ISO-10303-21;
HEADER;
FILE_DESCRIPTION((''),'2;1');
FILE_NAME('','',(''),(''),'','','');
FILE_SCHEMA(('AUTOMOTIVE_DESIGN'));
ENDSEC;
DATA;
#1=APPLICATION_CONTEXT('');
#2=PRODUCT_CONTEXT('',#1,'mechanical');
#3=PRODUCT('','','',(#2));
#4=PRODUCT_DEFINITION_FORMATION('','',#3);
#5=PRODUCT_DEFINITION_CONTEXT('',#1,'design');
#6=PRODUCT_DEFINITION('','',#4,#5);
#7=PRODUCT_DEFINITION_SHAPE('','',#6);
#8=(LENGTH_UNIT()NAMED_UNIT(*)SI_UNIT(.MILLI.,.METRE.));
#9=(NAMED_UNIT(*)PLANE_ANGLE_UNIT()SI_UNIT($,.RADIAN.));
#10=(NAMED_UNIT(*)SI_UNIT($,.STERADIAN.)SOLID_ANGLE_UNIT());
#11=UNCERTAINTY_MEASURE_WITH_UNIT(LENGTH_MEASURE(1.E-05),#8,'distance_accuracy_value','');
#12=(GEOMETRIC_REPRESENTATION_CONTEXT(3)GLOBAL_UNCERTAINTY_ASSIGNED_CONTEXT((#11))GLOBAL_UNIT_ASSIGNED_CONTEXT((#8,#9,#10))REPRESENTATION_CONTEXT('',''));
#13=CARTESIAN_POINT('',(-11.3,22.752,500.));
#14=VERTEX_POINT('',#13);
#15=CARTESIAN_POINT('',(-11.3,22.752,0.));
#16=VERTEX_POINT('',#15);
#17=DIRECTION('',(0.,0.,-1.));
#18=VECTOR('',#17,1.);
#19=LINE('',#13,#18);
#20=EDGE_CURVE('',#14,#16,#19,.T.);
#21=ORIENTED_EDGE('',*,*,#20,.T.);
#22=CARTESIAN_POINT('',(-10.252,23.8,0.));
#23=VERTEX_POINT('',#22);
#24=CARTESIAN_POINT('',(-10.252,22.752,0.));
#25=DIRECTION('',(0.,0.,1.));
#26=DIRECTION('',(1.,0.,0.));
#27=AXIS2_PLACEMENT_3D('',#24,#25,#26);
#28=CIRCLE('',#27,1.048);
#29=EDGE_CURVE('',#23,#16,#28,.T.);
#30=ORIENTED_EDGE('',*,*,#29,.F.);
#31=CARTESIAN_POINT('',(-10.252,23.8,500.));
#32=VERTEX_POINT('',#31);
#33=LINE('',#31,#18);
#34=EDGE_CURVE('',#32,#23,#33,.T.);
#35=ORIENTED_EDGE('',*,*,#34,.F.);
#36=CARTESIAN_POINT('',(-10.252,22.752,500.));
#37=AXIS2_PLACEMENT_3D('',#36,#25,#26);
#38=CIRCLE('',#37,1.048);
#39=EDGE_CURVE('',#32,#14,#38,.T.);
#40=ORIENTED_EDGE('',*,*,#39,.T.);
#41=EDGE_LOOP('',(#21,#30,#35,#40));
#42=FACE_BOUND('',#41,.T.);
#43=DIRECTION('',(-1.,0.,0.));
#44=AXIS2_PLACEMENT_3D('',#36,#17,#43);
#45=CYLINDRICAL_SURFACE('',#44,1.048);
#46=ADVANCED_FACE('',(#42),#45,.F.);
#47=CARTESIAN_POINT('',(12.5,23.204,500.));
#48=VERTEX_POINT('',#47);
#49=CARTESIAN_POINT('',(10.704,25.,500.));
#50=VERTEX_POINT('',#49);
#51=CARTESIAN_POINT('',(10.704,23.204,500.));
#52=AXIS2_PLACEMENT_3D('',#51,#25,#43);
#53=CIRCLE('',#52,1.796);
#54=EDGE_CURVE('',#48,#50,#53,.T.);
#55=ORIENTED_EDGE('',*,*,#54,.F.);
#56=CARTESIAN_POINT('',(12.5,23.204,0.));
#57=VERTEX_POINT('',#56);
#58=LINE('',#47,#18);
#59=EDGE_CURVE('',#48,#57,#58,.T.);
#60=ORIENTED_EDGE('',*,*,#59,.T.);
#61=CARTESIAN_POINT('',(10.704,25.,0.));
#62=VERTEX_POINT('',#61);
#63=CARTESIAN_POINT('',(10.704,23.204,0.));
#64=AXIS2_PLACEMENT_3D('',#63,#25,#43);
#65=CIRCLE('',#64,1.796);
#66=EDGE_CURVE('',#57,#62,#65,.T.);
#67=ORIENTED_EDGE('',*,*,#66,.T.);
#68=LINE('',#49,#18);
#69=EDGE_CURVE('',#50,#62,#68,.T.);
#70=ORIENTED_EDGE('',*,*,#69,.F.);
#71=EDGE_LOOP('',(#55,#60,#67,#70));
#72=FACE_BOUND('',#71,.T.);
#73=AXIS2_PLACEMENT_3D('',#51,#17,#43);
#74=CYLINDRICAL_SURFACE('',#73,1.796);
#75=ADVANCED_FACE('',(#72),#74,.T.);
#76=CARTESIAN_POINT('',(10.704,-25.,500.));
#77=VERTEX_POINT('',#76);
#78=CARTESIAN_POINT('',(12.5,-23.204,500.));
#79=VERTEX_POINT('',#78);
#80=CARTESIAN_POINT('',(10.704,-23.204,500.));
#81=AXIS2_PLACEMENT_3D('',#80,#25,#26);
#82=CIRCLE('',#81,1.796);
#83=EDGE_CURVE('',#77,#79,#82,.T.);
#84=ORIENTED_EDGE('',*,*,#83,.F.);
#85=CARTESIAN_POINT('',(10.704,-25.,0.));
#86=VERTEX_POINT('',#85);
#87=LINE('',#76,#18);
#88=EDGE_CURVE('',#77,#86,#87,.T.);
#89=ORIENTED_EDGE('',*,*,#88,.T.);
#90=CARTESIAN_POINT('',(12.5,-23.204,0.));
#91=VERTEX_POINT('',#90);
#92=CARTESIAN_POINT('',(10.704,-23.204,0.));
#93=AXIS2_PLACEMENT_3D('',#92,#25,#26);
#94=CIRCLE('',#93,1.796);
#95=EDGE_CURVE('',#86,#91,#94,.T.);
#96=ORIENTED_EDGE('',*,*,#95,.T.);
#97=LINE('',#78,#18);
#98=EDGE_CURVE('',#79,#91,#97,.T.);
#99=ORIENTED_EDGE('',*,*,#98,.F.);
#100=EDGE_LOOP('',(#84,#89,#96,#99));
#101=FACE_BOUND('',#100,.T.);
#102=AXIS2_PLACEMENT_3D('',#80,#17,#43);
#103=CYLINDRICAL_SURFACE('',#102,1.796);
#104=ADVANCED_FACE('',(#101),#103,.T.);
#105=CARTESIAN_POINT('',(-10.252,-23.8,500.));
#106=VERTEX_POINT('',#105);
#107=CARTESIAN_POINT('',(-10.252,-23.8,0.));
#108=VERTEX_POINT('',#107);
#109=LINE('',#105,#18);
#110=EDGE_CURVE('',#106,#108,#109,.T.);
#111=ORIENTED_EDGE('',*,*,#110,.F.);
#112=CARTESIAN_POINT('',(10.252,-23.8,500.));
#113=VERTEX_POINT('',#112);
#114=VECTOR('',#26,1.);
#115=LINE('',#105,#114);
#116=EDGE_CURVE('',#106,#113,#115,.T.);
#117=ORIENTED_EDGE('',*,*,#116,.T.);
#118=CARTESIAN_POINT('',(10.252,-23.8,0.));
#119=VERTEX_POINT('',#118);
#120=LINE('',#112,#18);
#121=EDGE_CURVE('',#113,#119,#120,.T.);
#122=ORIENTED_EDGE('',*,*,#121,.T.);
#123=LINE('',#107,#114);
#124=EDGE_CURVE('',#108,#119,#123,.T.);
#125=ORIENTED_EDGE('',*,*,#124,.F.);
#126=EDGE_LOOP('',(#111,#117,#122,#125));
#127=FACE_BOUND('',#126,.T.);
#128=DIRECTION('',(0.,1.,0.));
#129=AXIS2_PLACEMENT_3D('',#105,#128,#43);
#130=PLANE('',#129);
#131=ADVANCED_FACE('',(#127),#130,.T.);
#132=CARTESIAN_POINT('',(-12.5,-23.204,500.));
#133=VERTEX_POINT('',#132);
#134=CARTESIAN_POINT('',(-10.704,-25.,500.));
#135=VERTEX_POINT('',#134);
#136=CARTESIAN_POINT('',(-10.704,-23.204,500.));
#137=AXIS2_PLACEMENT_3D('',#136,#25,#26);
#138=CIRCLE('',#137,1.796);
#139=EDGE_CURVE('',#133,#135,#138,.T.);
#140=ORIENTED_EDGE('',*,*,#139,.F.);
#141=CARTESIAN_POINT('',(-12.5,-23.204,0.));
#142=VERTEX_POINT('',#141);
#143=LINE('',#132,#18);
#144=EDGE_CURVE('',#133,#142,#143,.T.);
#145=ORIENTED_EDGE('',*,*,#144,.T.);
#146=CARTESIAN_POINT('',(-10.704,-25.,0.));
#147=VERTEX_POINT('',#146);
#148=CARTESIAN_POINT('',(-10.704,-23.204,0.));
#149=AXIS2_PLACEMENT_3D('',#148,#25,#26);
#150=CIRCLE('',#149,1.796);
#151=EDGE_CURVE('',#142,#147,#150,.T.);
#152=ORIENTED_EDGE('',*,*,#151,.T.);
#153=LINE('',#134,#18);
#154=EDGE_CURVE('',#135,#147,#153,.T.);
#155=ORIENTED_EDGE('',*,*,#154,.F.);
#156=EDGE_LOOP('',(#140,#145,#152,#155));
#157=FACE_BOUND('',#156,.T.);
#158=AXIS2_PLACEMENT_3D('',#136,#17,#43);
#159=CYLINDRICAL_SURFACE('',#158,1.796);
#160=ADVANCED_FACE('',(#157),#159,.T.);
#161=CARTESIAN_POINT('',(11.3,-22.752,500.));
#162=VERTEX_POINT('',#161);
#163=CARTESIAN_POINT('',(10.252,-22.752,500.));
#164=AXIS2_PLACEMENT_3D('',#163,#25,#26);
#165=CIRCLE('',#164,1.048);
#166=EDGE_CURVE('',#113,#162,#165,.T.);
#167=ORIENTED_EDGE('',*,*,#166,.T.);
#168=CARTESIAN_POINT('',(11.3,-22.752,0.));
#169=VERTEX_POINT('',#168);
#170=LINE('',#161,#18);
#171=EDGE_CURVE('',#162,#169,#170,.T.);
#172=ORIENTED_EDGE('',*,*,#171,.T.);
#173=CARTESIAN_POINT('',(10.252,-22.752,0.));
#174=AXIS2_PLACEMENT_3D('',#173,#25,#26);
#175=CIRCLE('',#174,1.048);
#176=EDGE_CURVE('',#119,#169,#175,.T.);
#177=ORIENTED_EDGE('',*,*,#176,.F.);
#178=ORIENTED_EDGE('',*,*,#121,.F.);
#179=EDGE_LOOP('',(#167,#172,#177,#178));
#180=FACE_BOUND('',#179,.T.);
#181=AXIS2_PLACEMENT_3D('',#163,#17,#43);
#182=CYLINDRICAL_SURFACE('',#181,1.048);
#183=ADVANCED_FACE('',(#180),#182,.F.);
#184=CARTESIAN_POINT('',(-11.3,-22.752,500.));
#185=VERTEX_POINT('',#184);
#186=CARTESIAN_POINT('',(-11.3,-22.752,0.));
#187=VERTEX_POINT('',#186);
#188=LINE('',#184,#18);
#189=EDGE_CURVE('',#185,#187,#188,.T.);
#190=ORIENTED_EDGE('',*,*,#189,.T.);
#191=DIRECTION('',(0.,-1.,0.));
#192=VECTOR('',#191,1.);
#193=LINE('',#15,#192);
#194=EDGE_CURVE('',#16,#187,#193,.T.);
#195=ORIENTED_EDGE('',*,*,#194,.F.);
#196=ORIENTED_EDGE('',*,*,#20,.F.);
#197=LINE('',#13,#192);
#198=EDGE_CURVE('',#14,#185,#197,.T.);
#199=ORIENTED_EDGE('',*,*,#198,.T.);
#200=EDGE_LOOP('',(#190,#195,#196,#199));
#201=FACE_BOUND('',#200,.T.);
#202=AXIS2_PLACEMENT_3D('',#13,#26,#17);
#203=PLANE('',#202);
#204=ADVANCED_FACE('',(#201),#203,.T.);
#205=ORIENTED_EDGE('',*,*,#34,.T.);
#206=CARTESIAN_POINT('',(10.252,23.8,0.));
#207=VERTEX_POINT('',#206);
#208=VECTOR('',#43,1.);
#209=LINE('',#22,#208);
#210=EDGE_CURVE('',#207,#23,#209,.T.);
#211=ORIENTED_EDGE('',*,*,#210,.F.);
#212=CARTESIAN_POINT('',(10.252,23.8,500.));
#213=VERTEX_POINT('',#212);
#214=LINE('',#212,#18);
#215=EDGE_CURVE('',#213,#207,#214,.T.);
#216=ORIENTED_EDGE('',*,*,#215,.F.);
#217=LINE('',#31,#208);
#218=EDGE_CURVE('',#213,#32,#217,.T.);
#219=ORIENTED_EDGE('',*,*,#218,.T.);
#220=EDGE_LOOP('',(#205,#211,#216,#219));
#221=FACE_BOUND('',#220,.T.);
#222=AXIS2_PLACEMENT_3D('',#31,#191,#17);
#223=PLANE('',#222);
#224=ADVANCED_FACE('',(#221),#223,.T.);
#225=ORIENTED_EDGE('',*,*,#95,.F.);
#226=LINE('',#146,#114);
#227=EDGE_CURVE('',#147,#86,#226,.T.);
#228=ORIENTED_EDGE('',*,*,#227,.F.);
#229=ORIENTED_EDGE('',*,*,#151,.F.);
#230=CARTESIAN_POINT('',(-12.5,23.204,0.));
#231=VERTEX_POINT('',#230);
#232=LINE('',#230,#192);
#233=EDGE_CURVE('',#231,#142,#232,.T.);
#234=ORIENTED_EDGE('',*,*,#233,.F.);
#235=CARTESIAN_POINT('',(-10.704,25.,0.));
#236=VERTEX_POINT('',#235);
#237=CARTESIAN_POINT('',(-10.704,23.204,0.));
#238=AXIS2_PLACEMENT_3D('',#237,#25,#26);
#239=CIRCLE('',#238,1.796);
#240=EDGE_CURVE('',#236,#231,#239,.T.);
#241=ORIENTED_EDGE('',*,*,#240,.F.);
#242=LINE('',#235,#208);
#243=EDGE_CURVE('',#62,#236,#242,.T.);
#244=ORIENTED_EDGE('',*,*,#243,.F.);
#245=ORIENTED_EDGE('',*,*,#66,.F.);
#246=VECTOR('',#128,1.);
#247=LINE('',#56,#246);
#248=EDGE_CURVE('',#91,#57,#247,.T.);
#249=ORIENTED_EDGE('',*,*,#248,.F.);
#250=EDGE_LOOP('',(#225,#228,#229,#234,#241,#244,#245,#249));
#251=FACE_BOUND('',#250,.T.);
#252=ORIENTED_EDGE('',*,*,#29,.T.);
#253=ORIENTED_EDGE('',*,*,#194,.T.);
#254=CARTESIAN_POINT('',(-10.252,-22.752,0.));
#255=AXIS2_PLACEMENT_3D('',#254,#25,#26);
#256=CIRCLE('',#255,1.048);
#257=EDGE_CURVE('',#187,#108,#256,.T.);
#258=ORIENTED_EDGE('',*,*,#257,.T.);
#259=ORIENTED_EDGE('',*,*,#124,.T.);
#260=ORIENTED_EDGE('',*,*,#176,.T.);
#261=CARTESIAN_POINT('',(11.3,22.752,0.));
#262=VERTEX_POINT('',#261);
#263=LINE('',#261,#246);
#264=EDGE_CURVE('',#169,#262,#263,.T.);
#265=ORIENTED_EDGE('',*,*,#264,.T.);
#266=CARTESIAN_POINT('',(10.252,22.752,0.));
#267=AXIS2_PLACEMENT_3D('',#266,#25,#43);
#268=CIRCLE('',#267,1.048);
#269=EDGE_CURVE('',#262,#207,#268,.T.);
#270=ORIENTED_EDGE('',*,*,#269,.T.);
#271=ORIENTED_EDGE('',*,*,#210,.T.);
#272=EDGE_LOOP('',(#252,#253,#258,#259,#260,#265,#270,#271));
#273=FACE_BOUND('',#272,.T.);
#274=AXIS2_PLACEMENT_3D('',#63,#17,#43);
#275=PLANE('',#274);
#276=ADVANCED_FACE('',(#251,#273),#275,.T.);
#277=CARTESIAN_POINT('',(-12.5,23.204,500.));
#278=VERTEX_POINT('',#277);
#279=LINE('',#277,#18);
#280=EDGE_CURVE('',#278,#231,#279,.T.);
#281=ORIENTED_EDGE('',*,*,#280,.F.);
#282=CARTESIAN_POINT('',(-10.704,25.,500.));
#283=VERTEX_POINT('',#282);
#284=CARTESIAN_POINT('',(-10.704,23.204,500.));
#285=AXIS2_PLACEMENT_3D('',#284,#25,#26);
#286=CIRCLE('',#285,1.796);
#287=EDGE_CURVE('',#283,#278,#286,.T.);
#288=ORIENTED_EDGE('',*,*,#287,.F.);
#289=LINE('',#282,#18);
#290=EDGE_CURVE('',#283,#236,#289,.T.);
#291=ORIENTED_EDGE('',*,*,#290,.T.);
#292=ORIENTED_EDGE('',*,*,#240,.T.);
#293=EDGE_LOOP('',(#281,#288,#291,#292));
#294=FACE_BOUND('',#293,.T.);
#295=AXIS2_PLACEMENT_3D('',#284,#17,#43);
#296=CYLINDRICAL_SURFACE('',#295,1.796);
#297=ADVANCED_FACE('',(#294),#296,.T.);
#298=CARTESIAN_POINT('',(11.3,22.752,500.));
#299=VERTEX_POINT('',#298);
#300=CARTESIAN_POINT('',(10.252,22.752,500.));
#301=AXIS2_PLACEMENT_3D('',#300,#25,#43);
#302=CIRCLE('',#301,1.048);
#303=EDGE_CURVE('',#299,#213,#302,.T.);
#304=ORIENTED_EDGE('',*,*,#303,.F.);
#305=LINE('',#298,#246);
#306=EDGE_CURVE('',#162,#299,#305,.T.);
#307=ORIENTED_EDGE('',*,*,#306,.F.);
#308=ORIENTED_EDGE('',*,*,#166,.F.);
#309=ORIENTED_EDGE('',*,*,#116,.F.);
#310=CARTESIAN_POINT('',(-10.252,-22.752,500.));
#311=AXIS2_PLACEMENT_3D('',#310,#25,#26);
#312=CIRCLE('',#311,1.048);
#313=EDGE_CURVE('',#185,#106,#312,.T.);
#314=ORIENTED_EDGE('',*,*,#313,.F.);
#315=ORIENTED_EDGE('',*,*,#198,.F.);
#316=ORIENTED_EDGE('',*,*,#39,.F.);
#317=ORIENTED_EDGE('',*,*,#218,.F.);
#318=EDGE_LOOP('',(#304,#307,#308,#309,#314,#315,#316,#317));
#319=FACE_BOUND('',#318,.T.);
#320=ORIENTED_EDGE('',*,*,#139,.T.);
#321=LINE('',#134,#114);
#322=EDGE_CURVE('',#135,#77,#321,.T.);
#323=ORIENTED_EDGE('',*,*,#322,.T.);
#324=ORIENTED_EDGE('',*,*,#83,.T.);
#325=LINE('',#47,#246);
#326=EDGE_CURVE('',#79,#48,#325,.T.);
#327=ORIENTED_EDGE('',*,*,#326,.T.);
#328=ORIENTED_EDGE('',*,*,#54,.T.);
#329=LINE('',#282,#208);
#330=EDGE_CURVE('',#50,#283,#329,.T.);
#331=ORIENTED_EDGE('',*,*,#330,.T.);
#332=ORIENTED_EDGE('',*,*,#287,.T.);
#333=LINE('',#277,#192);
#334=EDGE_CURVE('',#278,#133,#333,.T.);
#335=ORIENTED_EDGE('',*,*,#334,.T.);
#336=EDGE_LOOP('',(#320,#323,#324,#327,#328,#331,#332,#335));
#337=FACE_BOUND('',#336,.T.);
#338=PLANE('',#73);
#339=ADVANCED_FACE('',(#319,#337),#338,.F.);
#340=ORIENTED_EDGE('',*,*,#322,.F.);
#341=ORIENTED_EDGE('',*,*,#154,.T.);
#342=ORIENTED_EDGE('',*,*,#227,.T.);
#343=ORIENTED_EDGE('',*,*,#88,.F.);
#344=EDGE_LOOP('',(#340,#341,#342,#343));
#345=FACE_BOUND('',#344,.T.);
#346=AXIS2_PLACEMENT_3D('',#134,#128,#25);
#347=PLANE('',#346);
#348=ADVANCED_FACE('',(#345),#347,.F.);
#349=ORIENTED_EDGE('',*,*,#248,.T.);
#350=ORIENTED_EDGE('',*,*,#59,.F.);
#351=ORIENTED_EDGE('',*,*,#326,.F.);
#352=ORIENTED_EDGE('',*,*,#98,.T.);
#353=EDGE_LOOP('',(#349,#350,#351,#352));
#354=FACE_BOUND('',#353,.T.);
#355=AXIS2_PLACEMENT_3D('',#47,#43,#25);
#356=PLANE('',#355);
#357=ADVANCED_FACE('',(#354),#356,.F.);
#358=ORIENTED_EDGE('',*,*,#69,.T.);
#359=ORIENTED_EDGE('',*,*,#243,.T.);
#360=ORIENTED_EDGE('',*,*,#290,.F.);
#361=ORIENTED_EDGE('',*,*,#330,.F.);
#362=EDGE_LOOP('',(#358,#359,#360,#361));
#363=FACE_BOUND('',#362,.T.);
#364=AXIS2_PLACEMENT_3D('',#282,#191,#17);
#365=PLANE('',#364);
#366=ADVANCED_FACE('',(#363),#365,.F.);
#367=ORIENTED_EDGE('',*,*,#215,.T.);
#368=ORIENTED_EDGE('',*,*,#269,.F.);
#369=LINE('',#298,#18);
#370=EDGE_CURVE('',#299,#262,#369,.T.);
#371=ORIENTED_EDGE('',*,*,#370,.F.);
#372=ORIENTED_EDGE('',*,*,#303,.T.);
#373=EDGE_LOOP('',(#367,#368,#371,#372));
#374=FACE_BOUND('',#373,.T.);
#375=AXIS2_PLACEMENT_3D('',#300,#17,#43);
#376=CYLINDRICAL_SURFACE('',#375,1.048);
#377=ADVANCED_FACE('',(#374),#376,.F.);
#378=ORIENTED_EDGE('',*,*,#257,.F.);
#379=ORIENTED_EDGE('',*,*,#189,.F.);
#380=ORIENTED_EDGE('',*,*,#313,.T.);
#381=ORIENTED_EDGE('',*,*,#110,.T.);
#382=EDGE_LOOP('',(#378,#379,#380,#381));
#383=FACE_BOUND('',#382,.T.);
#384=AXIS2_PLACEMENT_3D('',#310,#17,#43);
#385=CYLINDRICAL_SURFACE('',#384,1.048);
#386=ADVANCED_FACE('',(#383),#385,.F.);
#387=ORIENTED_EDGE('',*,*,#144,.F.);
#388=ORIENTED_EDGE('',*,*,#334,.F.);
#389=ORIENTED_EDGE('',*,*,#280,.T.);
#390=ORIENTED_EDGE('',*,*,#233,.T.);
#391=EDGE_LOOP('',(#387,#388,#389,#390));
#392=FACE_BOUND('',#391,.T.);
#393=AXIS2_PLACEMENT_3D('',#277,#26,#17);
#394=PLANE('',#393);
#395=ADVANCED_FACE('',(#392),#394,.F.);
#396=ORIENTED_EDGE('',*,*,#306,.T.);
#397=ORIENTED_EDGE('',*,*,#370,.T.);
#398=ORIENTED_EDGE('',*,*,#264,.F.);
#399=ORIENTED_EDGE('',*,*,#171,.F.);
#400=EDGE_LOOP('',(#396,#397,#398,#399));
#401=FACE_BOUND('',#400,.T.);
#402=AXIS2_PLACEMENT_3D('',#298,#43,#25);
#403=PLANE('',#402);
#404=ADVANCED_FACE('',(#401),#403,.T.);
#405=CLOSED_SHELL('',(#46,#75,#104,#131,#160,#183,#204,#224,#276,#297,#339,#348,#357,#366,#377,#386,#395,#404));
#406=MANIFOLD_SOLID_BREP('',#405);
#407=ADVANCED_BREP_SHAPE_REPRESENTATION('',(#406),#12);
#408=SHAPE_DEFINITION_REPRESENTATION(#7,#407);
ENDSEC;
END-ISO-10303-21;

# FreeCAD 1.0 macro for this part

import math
import FreeCAD as App
import Part
import Sketcher

doc = App.newDocument("Part")
body = doc.addObject("PartDesign::Body", "Body")

# Sketch on XY plane
sketch1 = body.newObject("Sketcher::SketchObject", "Sketch")
sketch1.AttachmentSupport = (doc.getObject("XY_Plane"), [""])
sketch1.MapMode = "FlatFace"
sketch1.addGeometry([
    Part.LineSegment(App.Vector(10.704, 25, 0), App.Vector(-10.704, 25, 0)),  # 0
    Part.ArcOfCircle(Part.Circle(App.Vector(-10.704, 23.204, 0), App.Vector(0, 0, 1), 1.796), math.radians(90), math.radians(180)),  # 1
    Part.LineSegment(App.Vector(-12.5, 23.204, 0), App.Vector(-12.5, -23.204, 0)),  # 2
    Part.ArcOfCircle(Part.Circle(App.Vector(-10.704, -23.204, 0), App.Vector(0, 0, 1), 1.796), math.radians(180), math.radians(270)),  # 3
    Part.LineSegment(App.Vector(-10.704, -25, 0), App.Vector(10.704, -25, 0)),  # 4
    Part.ArcOfCircle(Part.Circle(App.Vector(10.704, -23.204, 0), App.Vector(0, 0, 1), 1.796), math.radians(-90), math.radians(0)),  # 5
    Part.LineSegment(App.Vector(12.5, -23.204, 0), App.Vector(12.5, 23.204, 0)),  # 6
    Part.ArcOfCircle(Part.Circle(App.Vector(10.704, 23.204, 0), App.Vector(0, 0, 1), 1.796), math.radians(0), math.radians(90)),  # 7
    Part.LineSegment(App.Vector(-10.252, 23.8, 0), App.Vector(10.252, 23.8, 0)),  # 8
    Part.ArcOfCircle(Part.Circle(App.Vector(10.252, 22.752, 0), App.Vector(0, 0, 1), 1.048), math.radians(0), math.radians(90)),  # 9
    Part.LineSegment(App.Vector(11.3, 22.752, 0), App.Vector(11.3, -22.752, 0)),  # 10
    Part.ArcOfCircle(Part.Circle(App.Vector(10.252, -22.752, 0), App.Vector(0, 0, 1), 1.048), math.radians(-90), math.radians(0)),  # 11
    Part.LineSegment(App.Vector(10.252, -23.8, 0), App.Vector(-10.252, -23.8, 0)),  # 12
    Part.ArcOfCircle(Part.Circle(App.Vector(-10.252, -22.752, 0), App.Vector(0, 0, 1), 1.048), math.radians(180), math.radians(270)),  # 13
    Part.LineSegment(App.Vector(-11.3, -22.752, 0), App.Vector(-11.3, 22.752, 0)),  # 14
    Part.ArcOfCircle(Part.Circle(App.Vector(-10.252, 22.752, 0), App.Vector(0, 0, 1), 1.048), math.radians(90), math.radians(180)),  # 15
], False)
sketch1.addConstraint([
    Sketcher.Constraint("Tangent", 0, 2, 1, 1),
    Sketcher.Constraint("Tangent", 1, 2, 2, 1),
    Sketcher.Constraint("Tangent", 2, 2, 3, 1),
    Sketcher.Constraint("Tangent", 3, 2, 4, 1),
    Sketcher.Constraint("Tangent", 4, 2, 5, 1),
    Sketcher.Constraint("Tangent", 5, 2, 6, 1),
    Sketcher.Constraint("Tangent", 6, 2, 7, 1),
    Sketcher.Constraint("Tangent", 7, 2, 0, 1),
    Sketcher.Constraint("Tangent", 8, 2, 9, 2),
    Sketcher.Constraint("Tangent", 9, 1, 10, 1),
    Sketcher.Constraint("Tangent", 10, 2, 11, 2),
    Sketcher.Constraint("Tangent", 11, 1, 12, 1),
    Sketcher.Constraint("Tangent", 12, 2, 13, 2),
    Sketcher.Constraint("Tangent", 13, 1, 14, 1),
    Sketcher.Constraint("Tangent", 14, 2, 15, 2),
    Sketcher.Constraint("Tangent", 15, 1, 8, 1),
    Sketcher.Constraint("Horizontal", 0),
    Sketcher.Constraint("Vertical", 2),
    Sketcher.Constraint("Horizontal", 4),
    Sketcher.Constraint("Vertical", 6),
    Sketcher.Constraint("Horizontal", 8),
    Sketcher.Constraint("Vertical", 10),
    Sketcher.Constraint("Horizontal", 12),
    Sketcher.Constraint("Vertical", 14),
    Sketcher.Constraint("Equal", 1, 3),
    Sketcher.Constraint("Equal", 3, 5),
    Sketcher.Constraint("Equal", 5, 7),
    Sketcher.Constraint("Equal", 9, 11),
    Sketcher.Constraint("Equal", 11, 13),
    Sketcher.Constraint("Equal", 13, 15),
    Sketcher.Constraint("Symmetric", 1, 3, 5, 3, -1, 1),
    Sketcher.Constraint("Symmetric", 9, 3, 13, 3, -1, 1),
    Sketcher.Constraint("DistanceY", -1, 1, 0, 2, 25.0),
    Sketcher.Constraint("Radius", 1, 1.796),
    Sketcher.Constraint("Radius", 9, 1.048),
    Sketcher.Constraint("DistanceX", 1, 2, -1, 1, 12.5),
    Sketcher.Constraint("DistanceY", -1, 1, 8, 2, 23.8),
    Sketcher.Constraint("DistanceX", -1, 1, 9, 1, 11.3),
])
pad1 = body.newObject("PartDesign::Pad", "Pad")
pad1.Profile = sketch1
pad1.Length = 500

doc.recompute()
